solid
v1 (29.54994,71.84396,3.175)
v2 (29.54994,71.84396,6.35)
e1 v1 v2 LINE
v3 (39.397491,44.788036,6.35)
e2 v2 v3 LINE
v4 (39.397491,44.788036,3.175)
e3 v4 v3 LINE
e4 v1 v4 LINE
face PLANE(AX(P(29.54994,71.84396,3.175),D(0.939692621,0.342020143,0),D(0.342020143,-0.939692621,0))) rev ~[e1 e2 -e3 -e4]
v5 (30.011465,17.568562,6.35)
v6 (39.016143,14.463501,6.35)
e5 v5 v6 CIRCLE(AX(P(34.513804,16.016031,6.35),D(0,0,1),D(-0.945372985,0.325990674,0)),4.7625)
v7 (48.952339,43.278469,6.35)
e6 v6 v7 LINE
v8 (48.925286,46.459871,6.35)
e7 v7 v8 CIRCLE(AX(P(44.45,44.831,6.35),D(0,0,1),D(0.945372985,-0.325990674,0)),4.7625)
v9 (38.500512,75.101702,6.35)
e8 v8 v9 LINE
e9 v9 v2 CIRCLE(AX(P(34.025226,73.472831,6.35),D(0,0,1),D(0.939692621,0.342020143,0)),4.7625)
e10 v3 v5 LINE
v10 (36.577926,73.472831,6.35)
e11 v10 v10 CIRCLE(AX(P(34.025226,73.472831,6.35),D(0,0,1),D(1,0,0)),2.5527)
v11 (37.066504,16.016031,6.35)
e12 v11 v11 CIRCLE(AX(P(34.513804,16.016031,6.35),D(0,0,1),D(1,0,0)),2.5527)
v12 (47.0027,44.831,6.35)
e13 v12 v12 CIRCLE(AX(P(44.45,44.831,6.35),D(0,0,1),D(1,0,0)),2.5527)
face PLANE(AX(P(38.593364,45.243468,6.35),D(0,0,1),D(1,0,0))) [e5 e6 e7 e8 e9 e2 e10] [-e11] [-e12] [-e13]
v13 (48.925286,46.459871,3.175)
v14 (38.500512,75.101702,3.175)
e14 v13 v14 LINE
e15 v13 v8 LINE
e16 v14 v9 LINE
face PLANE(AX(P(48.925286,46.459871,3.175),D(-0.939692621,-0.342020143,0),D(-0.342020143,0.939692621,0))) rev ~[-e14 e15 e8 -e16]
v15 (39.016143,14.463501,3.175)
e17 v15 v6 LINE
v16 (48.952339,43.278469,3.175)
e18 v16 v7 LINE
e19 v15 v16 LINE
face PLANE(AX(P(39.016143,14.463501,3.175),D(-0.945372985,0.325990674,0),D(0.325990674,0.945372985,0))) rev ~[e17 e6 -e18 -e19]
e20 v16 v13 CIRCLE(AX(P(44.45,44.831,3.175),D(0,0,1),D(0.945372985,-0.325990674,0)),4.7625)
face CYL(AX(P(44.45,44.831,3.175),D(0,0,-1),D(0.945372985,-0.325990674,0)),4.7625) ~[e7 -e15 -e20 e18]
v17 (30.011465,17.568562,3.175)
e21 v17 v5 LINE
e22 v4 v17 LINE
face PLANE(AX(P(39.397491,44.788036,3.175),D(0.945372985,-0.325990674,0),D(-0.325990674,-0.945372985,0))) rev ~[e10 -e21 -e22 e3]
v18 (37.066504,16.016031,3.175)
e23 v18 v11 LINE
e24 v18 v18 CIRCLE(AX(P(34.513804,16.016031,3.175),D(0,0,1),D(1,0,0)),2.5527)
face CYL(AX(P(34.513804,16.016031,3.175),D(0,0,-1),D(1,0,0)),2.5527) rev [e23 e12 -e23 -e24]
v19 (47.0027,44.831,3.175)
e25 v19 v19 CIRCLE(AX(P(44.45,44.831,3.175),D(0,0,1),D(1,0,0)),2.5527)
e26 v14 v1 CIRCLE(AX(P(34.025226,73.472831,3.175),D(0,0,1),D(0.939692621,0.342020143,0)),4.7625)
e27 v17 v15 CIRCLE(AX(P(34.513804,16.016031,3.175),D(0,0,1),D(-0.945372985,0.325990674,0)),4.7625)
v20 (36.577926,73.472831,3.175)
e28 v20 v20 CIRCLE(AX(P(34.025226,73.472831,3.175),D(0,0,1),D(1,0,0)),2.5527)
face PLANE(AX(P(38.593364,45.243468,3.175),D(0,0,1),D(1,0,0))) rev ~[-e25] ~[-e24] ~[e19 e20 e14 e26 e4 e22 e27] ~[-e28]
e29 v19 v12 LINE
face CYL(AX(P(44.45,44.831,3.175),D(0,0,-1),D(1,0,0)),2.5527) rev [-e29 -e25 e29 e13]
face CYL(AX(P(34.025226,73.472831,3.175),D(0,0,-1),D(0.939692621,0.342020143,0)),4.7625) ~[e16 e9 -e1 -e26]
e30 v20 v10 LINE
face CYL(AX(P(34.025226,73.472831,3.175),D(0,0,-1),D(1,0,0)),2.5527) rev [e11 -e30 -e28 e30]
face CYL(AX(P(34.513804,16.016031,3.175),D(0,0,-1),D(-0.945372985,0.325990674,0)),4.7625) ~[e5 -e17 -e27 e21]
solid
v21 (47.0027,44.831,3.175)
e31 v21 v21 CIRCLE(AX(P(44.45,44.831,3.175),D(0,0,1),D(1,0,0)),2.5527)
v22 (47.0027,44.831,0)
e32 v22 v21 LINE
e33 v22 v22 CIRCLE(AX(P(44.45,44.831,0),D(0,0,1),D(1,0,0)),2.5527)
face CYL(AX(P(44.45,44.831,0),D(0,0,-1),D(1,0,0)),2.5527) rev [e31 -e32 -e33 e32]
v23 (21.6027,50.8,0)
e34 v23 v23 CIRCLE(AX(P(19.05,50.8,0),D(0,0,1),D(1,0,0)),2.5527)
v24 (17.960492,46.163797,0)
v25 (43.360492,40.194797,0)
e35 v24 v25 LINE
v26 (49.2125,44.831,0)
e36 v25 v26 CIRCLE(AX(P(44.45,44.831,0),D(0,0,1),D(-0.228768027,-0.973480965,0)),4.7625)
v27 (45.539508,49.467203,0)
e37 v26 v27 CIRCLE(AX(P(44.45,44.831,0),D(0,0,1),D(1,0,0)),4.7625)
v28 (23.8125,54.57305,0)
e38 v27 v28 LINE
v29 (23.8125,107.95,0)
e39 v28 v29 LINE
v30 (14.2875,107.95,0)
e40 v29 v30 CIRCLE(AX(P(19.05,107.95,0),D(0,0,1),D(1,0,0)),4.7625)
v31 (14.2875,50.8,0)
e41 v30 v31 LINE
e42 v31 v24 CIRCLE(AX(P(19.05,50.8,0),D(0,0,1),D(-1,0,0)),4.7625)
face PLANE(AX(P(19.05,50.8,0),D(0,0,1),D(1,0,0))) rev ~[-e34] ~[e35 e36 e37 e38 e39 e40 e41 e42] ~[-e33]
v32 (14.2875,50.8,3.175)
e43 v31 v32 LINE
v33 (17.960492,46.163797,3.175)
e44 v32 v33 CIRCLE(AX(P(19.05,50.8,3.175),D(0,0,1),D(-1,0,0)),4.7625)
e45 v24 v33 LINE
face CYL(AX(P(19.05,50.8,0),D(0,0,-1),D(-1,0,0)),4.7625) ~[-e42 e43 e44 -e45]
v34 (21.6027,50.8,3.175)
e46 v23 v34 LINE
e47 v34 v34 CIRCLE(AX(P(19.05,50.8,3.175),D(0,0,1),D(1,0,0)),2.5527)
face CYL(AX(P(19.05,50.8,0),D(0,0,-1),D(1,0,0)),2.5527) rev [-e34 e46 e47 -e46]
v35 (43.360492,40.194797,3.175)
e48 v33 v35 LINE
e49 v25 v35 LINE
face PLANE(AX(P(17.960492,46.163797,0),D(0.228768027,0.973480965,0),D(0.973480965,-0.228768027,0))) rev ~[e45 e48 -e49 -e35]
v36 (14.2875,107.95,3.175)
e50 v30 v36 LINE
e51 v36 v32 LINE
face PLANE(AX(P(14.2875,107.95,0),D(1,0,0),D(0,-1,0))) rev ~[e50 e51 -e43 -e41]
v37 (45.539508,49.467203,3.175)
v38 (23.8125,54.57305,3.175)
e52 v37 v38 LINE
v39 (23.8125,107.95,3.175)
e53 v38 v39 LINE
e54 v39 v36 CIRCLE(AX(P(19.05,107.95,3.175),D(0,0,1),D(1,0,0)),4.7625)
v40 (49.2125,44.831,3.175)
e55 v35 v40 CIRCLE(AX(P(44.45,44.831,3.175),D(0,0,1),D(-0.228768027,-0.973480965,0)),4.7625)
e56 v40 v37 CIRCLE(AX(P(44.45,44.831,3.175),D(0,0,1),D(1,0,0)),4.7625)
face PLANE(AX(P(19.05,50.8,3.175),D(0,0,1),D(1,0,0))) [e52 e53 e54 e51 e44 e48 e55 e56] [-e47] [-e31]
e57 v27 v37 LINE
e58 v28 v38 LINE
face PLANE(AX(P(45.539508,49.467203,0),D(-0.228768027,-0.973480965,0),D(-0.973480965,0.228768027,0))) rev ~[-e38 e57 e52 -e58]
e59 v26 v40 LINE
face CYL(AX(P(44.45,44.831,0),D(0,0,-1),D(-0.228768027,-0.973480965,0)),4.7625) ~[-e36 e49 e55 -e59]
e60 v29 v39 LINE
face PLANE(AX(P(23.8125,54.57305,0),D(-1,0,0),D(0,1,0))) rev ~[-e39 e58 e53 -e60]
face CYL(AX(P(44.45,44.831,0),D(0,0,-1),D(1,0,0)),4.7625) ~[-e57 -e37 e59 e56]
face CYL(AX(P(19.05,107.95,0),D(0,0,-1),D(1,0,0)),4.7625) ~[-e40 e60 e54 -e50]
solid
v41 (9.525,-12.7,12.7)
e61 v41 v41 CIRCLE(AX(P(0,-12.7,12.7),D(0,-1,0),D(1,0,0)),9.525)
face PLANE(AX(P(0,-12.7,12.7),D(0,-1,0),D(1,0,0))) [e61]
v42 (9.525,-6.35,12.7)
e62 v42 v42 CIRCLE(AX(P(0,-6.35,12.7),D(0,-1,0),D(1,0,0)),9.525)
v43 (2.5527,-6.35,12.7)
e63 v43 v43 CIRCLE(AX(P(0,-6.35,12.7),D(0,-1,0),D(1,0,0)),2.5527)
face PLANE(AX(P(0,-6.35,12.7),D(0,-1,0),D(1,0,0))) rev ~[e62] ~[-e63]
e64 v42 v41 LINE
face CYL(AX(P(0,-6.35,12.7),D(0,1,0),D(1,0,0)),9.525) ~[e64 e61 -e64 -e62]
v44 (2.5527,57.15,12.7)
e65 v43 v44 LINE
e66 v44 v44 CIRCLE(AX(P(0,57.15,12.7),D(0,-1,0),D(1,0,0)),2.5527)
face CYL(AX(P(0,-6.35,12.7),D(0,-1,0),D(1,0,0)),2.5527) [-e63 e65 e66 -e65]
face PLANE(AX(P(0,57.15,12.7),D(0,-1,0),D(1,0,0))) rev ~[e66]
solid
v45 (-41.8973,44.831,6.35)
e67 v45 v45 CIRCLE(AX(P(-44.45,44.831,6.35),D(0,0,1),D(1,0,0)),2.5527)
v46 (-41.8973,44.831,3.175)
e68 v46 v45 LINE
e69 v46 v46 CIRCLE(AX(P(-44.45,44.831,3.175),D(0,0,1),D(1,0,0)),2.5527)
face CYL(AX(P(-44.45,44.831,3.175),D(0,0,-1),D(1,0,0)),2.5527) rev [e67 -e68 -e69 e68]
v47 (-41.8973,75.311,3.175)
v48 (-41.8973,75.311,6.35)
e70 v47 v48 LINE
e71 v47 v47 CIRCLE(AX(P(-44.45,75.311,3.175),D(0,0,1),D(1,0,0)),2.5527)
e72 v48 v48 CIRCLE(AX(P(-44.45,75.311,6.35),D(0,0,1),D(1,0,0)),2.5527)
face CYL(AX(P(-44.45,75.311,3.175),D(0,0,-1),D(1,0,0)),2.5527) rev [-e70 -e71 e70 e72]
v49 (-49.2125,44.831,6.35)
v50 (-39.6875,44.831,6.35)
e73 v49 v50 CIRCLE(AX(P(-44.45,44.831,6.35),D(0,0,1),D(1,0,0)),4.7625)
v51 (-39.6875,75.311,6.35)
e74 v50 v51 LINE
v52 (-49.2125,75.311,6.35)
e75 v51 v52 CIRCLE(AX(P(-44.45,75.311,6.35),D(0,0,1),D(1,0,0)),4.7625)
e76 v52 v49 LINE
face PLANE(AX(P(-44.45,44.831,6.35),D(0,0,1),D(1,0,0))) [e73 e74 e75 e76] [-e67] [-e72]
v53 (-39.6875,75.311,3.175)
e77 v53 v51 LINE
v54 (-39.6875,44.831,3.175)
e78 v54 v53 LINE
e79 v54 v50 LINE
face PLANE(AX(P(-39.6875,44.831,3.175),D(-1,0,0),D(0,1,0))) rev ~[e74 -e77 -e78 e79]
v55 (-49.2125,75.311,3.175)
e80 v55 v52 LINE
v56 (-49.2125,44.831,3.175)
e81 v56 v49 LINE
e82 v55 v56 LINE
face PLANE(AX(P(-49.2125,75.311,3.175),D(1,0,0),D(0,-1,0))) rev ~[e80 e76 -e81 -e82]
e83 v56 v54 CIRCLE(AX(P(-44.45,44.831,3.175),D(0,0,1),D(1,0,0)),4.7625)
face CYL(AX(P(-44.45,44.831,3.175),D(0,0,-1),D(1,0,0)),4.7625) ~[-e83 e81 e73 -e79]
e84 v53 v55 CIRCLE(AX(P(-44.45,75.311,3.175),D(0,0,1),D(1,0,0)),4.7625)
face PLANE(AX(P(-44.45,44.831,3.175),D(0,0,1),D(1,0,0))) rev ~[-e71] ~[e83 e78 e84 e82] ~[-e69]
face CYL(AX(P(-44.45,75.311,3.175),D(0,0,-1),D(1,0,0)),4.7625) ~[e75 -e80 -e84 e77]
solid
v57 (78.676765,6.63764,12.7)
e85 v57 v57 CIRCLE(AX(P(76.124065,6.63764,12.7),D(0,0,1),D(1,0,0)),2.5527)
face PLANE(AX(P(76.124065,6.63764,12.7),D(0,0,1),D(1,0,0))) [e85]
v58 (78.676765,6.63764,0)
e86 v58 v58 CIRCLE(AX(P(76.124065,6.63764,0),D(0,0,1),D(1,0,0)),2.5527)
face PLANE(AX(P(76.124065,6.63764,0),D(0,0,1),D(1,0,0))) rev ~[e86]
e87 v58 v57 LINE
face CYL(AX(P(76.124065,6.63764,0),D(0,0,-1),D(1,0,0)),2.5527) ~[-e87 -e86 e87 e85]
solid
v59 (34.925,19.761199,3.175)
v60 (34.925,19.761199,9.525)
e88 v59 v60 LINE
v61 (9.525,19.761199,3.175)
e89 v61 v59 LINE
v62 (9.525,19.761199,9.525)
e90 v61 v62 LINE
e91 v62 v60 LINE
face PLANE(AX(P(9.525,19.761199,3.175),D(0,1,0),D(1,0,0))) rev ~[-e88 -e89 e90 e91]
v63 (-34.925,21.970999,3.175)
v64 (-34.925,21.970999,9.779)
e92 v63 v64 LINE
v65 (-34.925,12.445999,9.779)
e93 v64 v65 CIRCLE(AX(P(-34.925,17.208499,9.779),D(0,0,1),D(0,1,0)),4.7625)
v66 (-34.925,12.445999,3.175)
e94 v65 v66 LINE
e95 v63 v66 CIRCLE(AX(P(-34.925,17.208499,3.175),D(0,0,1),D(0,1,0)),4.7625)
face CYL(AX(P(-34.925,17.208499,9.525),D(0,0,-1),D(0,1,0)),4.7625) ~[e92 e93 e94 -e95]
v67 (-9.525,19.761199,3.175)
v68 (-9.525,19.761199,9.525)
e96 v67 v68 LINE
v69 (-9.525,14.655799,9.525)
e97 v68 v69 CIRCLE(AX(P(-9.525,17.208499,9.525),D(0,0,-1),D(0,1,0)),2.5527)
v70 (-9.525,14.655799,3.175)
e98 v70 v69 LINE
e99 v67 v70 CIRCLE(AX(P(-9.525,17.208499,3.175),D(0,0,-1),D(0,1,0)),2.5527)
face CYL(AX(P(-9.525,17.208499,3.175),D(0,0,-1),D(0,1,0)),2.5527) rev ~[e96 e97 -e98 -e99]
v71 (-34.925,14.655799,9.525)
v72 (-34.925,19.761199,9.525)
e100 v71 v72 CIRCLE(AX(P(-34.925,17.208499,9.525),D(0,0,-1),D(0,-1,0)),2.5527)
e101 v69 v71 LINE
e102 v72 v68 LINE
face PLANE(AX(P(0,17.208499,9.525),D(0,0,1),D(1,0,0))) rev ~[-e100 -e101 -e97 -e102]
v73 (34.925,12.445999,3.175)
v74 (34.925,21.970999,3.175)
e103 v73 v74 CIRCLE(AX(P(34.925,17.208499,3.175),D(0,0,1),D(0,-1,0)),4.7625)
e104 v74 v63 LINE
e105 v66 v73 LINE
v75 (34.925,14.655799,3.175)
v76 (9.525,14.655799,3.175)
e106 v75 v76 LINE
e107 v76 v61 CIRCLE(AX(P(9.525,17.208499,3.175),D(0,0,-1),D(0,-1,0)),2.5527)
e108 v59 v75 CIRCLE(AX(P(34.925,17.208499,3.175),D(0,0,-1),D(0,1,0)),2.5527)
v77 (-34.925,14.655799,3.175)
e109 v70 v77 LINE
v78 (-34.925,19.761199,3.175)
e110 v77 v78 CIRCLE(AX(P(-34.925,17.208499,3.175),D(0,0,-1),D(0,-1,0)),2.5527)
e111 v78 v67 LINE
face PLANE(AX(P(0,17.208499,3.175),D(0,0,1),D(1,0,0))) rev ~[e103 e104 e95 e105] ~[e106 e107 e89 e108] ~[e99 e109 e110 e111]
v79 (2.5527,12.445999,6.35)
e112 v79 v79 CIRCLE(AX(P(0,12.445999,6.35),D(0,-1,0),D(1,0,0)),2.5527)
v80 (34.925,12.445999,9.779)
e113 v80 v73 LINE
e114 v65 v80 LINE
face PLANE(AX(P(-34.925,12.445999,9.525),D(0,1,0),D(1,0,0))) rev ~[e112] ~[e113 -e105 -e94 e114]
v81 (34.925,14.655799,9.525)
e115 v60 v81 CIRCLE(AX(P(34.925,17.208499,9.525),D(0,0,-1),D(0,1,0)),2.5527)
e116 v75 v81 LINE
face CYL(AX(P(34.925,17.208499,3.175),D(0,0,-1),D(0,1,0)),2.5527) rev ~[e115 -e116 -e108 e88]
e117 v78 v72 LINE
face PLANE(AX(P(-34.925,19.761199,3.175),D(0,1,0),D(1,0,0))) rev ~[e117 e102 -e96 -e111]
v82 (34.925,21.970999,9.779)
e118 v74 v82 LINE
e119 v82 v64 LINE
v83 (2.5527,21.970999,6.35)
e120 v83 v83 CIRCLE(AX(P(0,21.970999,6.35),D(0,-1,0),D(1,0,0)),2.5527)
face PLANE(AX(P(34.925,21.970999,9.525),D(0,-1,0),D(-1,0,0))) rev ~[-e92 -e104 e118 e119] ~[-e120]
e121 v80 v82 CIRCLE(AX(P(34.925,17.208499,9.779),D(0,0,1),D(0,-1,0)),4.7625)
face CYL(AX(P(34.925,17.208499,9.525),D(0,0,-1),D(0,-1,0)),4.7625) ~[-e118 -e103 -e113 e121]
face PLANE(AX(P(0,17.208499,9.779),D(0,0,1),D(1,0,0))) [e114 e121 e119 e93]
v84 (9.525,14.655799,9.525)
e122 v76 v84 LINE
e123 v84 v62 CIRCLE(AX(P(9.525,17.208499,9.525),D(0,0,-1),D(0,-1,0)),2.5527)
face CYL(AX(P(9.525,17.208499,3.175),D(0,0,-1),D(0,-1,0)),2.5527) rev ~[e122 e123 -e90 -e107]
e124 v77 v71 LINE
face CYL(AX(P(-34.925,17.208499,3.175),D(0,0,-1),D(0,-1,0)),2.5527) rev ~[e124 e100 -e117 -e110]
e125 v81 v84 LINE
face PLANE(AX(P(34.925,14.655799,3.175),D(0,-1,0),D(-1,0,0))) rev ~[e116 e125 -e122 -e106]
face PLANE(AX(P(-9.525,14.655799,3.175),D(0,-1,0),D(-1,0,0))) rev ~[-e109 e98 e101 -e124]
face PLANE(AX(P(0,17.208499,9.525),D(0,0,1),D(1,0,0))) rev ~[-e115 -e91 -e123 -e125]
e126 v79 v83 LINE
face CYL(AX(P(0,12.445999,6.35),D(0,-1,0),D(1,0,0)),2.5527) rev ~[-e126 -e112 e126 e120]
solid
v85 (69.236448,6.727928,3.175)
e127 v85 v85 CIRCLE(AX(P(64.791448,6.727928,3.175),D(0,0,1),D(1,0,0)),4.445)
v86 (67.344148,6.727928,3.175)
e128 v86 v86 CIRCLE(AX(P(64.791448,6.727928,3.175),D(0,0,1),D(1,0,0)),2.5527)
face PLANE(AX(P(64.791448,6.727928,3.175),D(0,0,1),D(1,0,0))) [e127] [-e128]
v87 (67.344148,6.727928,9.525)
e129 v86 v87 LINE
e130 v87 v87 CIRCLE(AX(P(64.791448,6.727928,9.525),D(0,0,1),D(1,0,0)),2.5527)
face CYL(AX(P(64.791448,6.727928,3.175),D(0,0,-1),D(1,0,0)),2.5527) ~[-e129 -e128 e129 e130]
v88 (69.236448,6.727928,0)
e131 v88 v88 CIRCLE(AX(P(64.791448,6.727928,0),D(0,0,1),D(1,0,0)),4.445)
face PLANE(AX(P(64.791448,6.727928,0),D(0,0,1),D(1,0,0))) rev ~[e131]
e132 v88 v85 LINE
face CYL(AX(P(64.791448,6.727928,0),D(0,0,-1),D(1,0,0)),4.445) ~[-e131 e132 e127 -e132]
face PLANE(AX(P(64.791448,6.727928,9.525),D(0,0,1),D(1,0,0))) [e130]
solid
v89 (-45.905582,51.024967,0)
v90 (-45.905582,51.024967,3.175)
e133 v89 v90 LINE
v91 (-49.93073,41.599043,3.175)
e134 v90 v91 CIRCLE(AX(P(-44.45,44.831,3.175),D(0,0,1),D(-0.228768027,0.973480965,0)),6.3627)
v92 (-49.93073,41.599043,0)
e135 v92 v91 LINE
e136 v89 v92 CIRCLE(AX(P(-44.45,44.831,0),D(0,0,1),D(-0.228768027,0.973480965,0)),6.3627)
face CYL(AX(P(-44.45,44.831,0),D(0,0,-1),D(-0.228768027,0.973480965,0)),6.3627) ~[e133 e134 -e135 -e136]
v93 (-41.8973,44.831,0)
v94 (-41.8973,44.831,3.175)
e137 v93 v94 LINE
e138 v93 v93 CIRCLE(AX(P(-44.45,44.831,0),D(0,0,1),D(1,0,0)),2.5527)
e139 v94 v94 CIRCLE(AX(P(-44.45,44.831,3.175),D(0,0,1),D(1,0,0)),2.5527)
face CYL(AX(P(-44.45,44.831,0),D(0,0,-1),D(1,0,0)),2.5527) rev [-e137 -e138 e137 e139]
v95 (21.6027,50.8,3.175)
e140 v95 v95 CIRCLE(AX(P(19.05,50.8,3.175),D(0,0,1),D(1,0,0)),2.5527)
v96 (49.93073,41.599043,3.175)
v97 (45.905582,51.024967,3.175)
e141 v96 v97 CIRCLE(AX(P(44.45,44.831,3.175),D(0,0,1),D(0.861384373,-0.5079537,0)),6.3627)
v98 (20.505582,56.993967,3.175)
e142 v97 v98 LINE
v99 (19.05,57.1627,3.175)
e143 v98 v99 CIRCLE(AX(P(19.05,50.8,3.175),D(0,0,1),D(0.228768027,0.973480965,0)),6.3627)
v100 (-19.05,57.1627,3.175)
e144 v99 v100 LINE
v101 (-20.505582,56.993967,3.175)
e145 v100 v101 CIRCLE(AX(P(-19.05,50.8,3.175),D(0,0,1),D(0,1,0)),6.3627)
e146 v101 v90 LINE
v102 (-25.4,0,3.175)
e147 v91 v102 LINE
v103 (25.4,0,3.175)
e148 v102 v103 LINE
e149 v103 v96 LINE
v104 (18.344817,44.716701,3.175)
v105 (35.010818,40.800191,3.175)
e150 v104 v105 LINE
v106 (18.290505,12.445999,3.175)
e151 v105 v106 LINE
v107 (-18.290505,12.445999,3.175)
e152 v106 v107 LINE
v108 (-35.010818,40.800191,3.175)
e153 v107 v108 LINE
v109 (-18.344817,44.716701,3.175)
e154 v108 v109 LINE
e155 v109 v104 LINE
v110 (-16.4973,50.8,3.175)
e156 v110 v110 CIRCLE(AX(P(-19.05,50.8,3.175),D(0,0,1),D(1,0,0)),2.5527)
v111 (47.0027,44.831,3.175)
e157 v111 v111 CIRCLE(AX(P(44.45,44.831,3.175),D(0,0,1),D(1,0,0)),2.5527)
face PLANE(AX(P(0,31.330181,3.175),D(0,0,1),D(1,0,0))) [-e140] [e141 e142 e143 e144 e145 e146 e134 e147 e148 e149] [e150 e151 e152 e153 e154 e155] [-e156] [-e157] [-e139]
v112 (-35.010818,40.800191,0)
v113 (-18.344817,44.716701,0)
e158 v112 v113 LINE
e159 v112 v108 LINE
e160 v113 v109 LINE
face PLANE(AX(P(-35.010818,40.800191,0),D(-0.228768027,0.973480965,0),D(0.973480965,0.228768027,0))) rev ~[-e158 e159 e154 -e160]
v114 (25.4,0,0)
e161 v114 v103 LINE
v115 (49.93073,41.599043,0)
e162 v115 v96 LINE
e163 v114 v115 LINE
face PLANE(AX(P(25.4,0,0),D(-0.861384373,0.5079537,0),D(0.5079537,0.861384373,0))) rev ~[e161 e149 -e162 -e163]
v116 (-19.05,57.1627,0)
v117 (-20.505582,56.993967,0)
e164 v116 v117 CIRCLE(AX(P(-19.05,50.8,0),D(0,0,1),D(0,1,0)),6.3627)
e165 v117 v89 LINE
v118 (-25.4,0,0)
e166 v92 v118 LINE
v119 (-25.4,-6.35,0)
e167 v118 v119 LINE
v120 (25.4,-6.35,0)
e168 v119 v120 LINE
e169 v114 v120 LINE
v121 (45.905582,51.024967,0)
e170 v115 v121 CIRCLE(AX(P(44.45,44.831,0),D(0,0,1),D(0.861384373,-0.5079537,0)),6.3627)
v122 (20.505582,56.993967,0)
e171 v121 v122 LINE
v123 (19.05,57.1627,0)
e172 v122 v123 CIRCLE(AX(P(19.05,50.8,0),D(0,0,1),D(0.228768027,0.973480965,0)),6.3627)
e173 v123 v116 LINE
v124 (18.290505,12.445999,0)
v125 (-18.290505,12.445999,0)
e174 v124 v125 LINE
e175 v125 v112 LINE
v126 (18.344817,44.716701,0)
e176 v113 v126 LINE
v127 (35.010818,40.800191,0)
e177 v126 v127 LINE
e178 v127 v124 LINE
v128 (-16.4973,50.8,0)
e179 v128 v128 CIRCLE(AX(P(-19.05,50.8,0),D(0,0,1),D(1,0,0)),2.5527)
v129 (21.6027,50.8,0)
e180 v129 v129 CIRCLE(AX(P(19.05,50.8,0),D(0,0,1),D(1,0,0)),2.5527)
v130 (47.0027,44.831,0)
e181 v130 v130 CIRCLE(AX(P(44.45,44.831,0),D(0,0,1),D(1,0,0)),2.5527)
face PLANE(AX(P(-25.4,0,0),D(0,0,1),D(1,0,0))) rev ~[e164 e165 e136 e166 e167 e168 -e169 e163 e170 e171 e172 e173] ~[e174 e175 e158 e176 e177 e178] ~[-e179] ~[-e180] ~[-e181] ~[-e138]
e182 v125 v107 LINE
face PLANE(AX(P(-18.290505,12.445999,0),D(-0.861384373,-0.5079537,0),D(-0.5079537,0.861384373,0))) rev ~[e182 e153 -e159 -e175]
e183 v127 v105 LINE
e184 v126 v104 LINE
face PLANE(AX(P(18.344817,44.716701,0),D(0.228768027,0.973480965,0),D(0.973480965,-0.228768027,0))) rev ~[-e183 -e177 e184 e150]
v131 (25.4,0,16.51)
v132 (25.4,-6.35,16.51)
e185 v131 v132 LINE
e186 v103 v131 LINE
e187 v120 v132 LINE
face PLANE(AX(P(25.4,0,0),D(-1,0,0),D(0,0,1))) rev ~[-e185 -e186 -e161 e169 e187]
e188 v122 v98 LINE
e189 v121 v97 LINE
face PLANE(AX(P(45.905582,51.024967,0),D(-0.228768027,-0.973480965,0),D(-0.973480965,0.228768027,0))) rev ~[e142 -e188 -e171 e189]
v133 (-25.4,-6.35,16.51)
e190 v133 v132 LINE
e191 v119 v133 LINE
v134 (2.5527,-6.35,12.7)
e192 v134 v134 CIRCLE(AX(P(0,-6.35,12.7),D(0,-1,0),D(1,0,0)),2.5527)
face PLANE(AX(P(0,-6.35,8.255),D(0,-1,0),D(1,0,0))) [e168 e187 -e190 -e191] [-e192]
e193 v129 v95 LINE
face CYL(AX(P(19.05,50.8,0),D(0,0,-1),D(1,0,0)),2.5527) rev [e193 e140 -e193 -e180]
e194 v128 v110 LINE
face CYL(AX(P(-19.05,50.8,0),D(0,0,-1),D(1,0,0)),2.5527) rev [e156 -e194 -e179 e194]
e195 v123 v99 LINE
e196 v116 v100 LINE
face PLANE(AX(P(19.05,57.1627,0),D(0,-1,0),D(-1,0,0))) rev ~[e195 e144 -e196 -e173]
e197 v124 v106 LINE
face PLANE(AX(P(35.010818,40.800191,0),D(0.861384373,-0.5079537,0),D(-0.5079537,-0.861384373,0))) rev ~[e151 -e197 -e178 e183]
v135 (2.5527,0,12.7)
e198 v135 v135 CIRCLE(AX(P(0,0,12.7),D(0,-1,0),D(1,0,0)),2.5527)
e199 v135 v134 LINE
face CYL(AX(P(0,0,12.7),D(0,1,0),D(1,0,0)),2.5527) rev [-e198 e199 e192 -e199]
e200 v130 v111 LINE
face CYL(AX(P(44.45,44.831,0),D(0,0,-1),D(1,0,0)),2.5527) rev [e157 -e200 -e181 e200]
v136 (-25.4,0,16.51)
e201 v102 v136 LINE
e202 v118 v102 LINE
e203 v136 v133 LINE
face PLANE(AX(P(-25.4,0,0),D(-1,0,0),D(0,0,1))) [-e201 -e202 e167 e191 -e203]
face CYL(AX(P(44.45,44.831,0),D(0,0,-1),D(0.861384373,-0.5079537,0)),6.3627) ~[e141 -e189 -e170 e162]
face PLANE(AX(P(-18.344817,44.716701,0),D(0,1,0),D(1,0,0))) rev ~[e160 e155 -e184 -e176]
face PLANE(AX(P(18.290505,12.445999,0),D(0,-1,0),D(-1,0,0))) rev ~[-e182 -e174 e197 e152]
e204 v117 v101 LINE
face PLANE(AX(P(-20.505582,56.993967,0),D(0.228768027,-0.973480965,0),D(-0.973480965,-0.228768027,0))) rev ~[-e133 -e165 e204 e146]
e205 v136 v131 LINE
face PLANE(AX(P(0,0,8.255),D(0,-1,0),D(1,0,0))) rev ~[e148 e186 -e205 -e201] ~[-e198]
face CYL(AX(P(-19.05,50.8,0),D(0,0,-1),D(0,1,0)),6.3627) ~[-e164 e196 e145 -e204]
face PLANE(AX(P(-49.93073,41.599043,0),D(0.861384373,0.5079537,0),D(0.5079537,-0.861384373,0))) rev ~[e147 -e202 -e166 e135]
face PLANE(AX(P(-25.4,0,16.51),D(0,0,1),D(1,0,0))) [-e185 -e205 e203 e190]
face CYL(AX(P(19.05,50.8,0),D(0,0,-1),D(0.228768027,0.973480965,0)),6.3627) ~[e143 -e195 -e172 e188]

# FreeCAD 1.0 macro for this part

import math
import FreeCAD as App
import Part
import Sketcher
Q = App.Units.Quantity

doc = App.newDocument("Part")
body = doc.addObject("PartDesign::Body", "Body")

# Sketch on XY plane
sketch1 = body.newObject("Sketcher::SketchObject", "Sketch")
sketch1.AttachmentSupport = (doc.getObject("XY_Plane"), [""])
sketch1.MapMode = "FlatFace"
sketch1.addGeometry(Part.LineSegment(App.Vector(45.905582, 51.024967, 0), App.Vector(20.505582, 56.993967, 0)), False)
sketch1.addGeometry(Part.ArcOfCircle(Part.Circle(App.Vector(19.05, 50.8, 0), App.Vector(0, 0, 1), 6.3627), math.radians(76.775449), math.radians(90)), False)
sketch1.addGeometry(Part.LineSegment(App.Vector(19.05, 57.1627, 0), App.Vector(-19.05, 57.1627, 0)), False)
sketch1.addGeometry(Part.ArcOfCircle(Part.Circle(App.Vector(-19.05, 50.8, 0), App.Vector(0, 0, 1), 6.3627), math.radians(90), math.radians(103.224551)), False)
sketch1.addGeometry(Part.LineSegment(App.Vector(-20.505582, 56.993967, 0), App.Vector(-45.905582, 51.024967, 0)), False)
sketch1.addGeometry(Part.ArcOfCircle(Part.Circle(App.Vector(-44.45, 44.831, 0), App.Vector(0, 0, 1), 6.3627), math.radians(103.224551), math.radians(210.527623)), False)
sketch1.addGeometry(Part.LineSegment(App.Vector(-49.93073, 41.599043, 0), App.Vector(-25.4, 0, 0)), False)
sketch1.addGeometry(Part.LineSegment(App.Vector(-25.4, 0, 0), App.Vector(25.4, 0, 0)), False)
sketch1.addGeometry(Part.LineSegment(App.Vector(25.4, 0, 0), App.Vector(49.93073, 41.599043, 0)), False)
sketch1.addGeometry(Part.ArcOfCircle(Part.Circle(App.Vector(44.45, 44.831, 0), App.Vector(0, 0, 1), 6.3627), math.radians(-30.527623), math.radians(76.775449)), False)
sketch1.addGeometry(Part.LineSegment(App.Vector(18.290505, 12.445999, 0), App.Vector(-18.290505, 12.445999, 0)), False)
sketch1.addGeometry(Part.LineSegment(App.Vector(-18.290505, 12.445999, 0), App.Vector(-35.010818, 40.800191, 0)), False)
sketch1.addGeometry(Part.LineSegment(App.Vector(-35.010818, 40.800191, 0), App.Vector(-18.344817, 44.716701, 0)), False)
sketch1.addGeometry(Part.LineSegment(App.Vector(-18.344817, 44.716701, 0), App.Vector(18.344817, 44.716701, 0)), False)
sketch1.addGeometry(Part.LineSegment(App.Vector(18.344817, 44.716701, 0), App.Vector(35.010818, 40.800191, 0)), False)
sketch1.addGeometry(Part.LineSegment(App.Vector(35.010818, 40.800191, 0), App.Vector(18.290505, 12.445999, 0)), False)
sketch1.addGeometry(Part.Circle(App.Vector(-44.45, 44.831, 0), App.Vector(0, 0, 1), 2.5527), False)
sketch1.addGeometry(Part.Circle(App.Vector(-19.05, 50.8, 0), App.Vector(0, 0, 1), 2.5527), False)
sketch1.addGeometry(Part.Circle(App.Vector(19.05, 50.8, 0), App.Vector(0, 0, 1), 2.5527), False)
sketch1.addGeometry(Part.Circle(App.Vector(44.45, 44.831, 0), App.Vector(0, 0, 1), 2.5527), False)
sketch1.addConstraint(Sketcher.Constraint("Tangent", 0, 2, 1, 1))
sketch1.addConstraint(Sketcher.Constraint("Tangent", 1, 2, 2, 1))
sketch1.addConstraint(Sketcher.Constraint("Tangent", 2, 2, 3, 1))
sketch1.addConstraint(Sketcher.Constraint("Tangent", 3, 2, 4, 1))
sketch1.addConstraint(Sketcher.Constraint("Tangent", 4, 2, 5, 1))
sketch1.addConstraint(Sketcher.Constraint("Tangent", 5, 2, 6, 1))
sketch1.addConstraint(Sketcher.Constraint("Coincident", 6, 2, 7, 1))
sketch1.addConstraint(Sketcher.Constraint("Coincident", 7, 2, 8, 1))
sketch1.addConstraint(Sketcher.Constraint("Tangent", 8, 2, 9, 1))
sketch1.addConstraint(Sketcher.Constraint("Tangent", 9, 2, 0, 1))
sketch1.addConstraint(Sketcher.Constraint("Coincident", 10, 2, 11, 1))
sketch1.addConstraint(Sketcher.Constraint("Coincident", 11, 2, 12, 1))
sketch1.addConstraint(Sketcher.Constraint("Coincident", 12, 2, 13, 1))
sketch1.addConstraint(Sketcher.Constraint("Coincident", 13, 2, 14, 1))
sketch1.addConstraint(Sketcher.Constraint("Coincident", 14, 2, 15, 1))
sketch1.addConstraint(Sketcher.Constraint("Coincident", 15, 2, 10, 1))
sketch1.addConstraint(Sketcher.Constraint("Horizontal", 2))
sketch1.addConstraint(Sketcher.Constraint("Horizontal", 7))
sketch1.addConstraint(Sketcher.Constraint("Horizontal", 10))
sketch1.addConstraint(Sketcher.Constraint("Horizontal", 13))
sketch1.addConstraint(Sketcher.Constraint("Coincident", 16, 3, 5, 3))
sketch1.addConstraint(Sketcher.Constraint("Coincident", 17, 3, 3, 3))
sketch1.addConstraint(Sketcher.Constraint("Coincident", 18, 3, 1, 3))
sketch1.addConstraint(Sketcher.Constraint("Coincident", 19, 3, 9, 3))
sketch1.addConstraint(Sketcher.Constraint("Equal", 1, 3))
sketch1.addConstraint(Sketcher.Constraint("Equal", 3, 5))
sketch1.addConstraint(Sketcher.Constraint("Equal", 5, 9))
sketch1.addConstraint(Sketcher.Constraint("Equal", 16, 17))
sketch1.addConstraint(Sketcher.Constraint("Equal", 17, 18))
sketch1.addConstraint(Sketcher.Constraint("Equal", 18, 19))
sketch1.addConstraint(Sketcher.Constraint("Symmetric", 6, 2, 7, 2, -1, 1))
sketch1.addConstraint(Sketcher.Constraint("Symmetric", 5, 3, 9, 3, -2))
sketch1.addConstraint(Sketcher.Constraint("Symmetric", 11, 2, 14, 2, -2))
sketch1.addConstraint(Sketcher.Constraint("Parallel", 6, 11))
sketch1.addConstraint(Sketcher.Constraint("Parallel", 4, 12))
sketch1.addConstraint(Sketcher.Constraint("Parallel", 0, 14))
sketch1.addConstraint(Sketcher.Constraint("Parallel", 8, 15))
sketch1.addConstraint(Sketcher.Constraint("Horizontal", 0, 2, 3, 2))
sketch1.addConstraint(Sketcher.Constraint("DistanceX", 7, 1, 7, 2, Q("2 in")))
sketch1.addConstraint(Sketcher.Constraint("Diameter", 16, Q("0.201 in")))
sketch1.addConstraint(Sketcher.Constraint("DistanceX", 2, 2, 2, 1, Q("1.5 in")))
sketch1.addConstraint(Sketcher.Constraint("DistanceY", -1, 1, 1, 3, Q("2 in")))
sketch1.addConstraint(Sketcher.Constraint("DistanceX", 5, 3, 3, 3, Q("1 in")))
sketch1.addConstraint(Sketcher.Constraint("Radius", 1, Q("0.2505 in")))
sketch1.addConstraint(Sketcher.Constraint("DistanceY", -1, 1, 10, 2, Q("0.49 in")))
sketch1.addConstraint(Sketcher.Constraint("DistanceY", 12, 2, 2, 2, Q("0.49 in")))
sketch1.addConstraint(Sketcher.Constraint("DistanceY", -1, 1, 5, 3, Q("1.765 in")))
sketch1.addConstraint(Sketcher.Constraint("DistanceX", 10, 2, 10, 1, Q("36.58101 mm")))
sketch1.addConstraint(Sketcher.Constraint("DistanceX", 11, 2, 12, 2, Q("16.666001 mm")))
pad1 = body.newObject("PartDesign::Pad", "Pad")
pad1.Profile = sketch1
pad1.Length = Q("0.125 in")

# Sketch on XZ plane
sketch2 = body.newObject("Sketcher::SketchObject", "Sketch001")
sketch2.AttachmentSupport = (doc.getObject("XZ_Plane"), [""])
sketch2.MapMode = "FlatFace"
sketch2.addGeometry(Part.LineSegment(App.Vector(-25.4, 16.51, 0), App.Vector(-25.4, 0, 0)), False)
sketch2.addGeometry(Part.LineSegment(App.Vector(-25.4, 0, 0), App.Vector(25.4, 0, 0)), False)
sketch2.addGeometry(Part.LineSegment(App.Vector(25.4, 0, 0), App.Vector(25.4, 16.51, 0)), False)
sketch2.addGeometry(Part.LineSegment(App.Vector(25.4, 16.51, 0), App.Vector(-25.4, 16.51, 0)), False)
sketch2.addGeometry(Part.Circle(App.Vector(0, 12.7, 0), App.Vector(0, 0, 1), 2.5527), False)
sketch2.addConstraint(Sketcher.Constraint("Coincident", 0, 2, 1, 1))
sketch2.addConstraint(Sketcher.Constraint("Coincident", 1, 2, 2, 1))
sketch2.addConstraint(Sketcher.Constraint("Coincident", 2, 2, 3, 1))
sketch2.addConstraint(Sketcher.Constraint("Coincident", 3, 2, 0, 1))
sketch2.addConstraint(Sketcher.Constraint("Vertical", 0))
sketch2.addConstraint(Sketcher.Constraint("Horizontal", 1))
sketch2.addConstraint(Sketcher.Constraint("Vertical", 2))
sketch2.addConstraint(Sketcher.Constraint("Horizontal", 3))
sketch2.addConstraint(Sketcher.Constraint("Symmetric", 0, 2, 1, 2, -1, 1))
sketch2.addConstraint(Sketcher.Constraint("PointOnObject", 4, 3, -2))
sketch2.addConstraint(Sketcher.Constraint("DistanceX", 1, 1, 1, 2, Q("2 in")))
sketch2.addConstraint(Sketcher.Constraint("Diameter", 4, Q("0.201 in")))
sketch2.addConstraint(Sketcher.Constraint("DistanceY", 0, 2, 0, 1, Q("0.65 in")))
sketch2.addConstraint(Sketcher.Constraint("DistanceY", -1, 1, 4, 3, Q("0.5 in")))
pad2 = body.newObject("PartDesign::Pad", "Pad001")
pad2.Profile = sketch2
pad2.Length = Q("0.25 in")
body2 = doc.addObject("PartDesign::Body", "Body001")

# Sketch on XY plane
sketch3 = body2.newObject("Sketcher::SketchObject", "Sketch002")
sketch3.AttachmentSupport = (doc.getObject("XY_Plane001"), [""])
sketch3.MapMode = "FlatFace"
sketch3.AttachmentOffset = App.Placement(App.Vector(0, 0, 0.125 * 25.4), App.Rotation())
sketch3.addGeometry(Part.ArcOfCircle(Part.Circle(App.Vector(-44.45, 44.831, 0), App.Vector(0, 0, 1), 4.7625), math.radians(180), math.radians(360)), False)
sketch3.addGeometry(Part.LineSegment(App.Vector(-39.6875, 44.831, 0), App.Vector(-39.6875, 75.311, 0)), False)
sketch3.addGeometry(Part.ArcOfCircle(Part.Circle(App.Vector(-44.45, 75.311, 0), App.Vector(0, 0, 1), 4.7625), math.radians(0), math.radians(180)), False)
sketch3.addGeometry(Part.LineSegment(App.Vector(-49.2125, 75.311, 0), App.Vector(-49.2125, 44.831, 0)), False)
sketch3.addGeometry(Part.Circle(App.Vector(-44.45, 44.831, 0), App.Vector(0, 0, 1), 2.5527), False)
sketch3.addGeometry(Part.Circle(App.Vector(-44.45, 75.311, 0), App.Vector(0, 0, 1), 2.5527), False)
sketch3.addConstraint(Sketcher.Constraint("Tangent", 0, 2, 1, 1))
sketch3.addConstraint(Sketcher.Constraint("Tangent", 1, 2, 2, 1))
sketch3.addConstraint(Sketcher.Constraint("Tangent", 2, 2, 3, 1))
sketch3.addConstraint(Sketcher.Constraint("Tangent", 3, 2, 0, 1))
sketch3.addConstraint(Sketcher.Constraint("Vertical", 1))
sketch3.addConstraint(Sketcher.Constraint("Vertical", 3))
sketch3.addConstraint(Sketcher.Constraint("Coincident", 4, 3, 0, 3))
sketch3.addConstraint(Sketcher.Constraint("Coincident", 5, 3, 2, 3))
sketch3.addConstraint(Sketcher.Constraint("Equal", 4, 5))
sketch3.addConstraint(Sketcher.Constraint("Diameter", 4, Q("0.201 in")))
sketch3.addConstraint(Sketcher.Constraint("DistanceY", 1, 1, 1, 2, Q("1.2 in")))
sketch3.addConstraint(Sketcher.Constraint("Radius", 0, Q("0.1875 in")))
sketch3.addConstraint(Sketcher.Constraint("DistanceX", 0, 3, -1, 1, Q("1.75 in")))
sketch3.addConstraint(Sketcher.Constraint("DistanceY", -1, 1, 0, 3, Q("1.765 in")))
pad3 = body2.newObject("PartDesign::Pad", "Pad002")
pad3.Profile = sketch3
pad3.Length = Q("0.125 in")
body3 = doc.addObject("PartDesign::Body", "Body002")

# Sketch on XY plane
sketch4 = body3.newObject("Sketcher::SketchObject", "Sketch003")
sketch4.AttachmentSupport = (doc.getObject("XY_Plane002"), [""])
sketch4.MapMode = "FlatFace"
sketch4.AttachmentOffset = App.Placement(App.Vector(0, 0, 0.125 * 25.4), App.Rotation())
sketch4.addGeometry(Part.LineSegment(App.Vector(34.925, 21.970999, 0), App.Vector(-34.925, 21.970999, 0)), False)
sketch4.addGeometry(Part.ArcOfCircle(Part.Circle(App.Vector(-34.925, 17.208499, 0), App.Vector(0, 0, 1), 4.7625), math.radians(90), math.radians(270)), False)
sketch4.addGeometry(Part.LineSegment(App.Vector(-34.925, 12.445999, 0), App.Vector(34.925, 12.445999, 0)), False)
sketch4.addGeometry(Part.ArcOfCircle(Part.Circle(App.Vector(34.925, 17.208499, 0), App.Vector(0, 0, 1), 4.7625), math.radians(-90), math.radians(90)), False)
sketch4.addGeometry(Part.LineSegment(App.Vector(-34.925, 19.761199, 0), App.Vector(-9.525, 19.761199, 0)), False)
sketch4.addGeometry(Part.ArcOfCircle(Part.Circle(App.Vector(-9.525, 17.208499, 0), App.Vector(0, 0, 1), 2.5527), math.radians(-90), math.radians(90)), False)
sketch4.addGeometry(Part.LineSegment(App.Vector(-9.525, 14.655799, 0), App.Vector(-34.925, 14.655799, 0)), False)
sketch4.addGeometry(Part.ArcOfCircle(Part.Circle(App.Vector(-34.925, 17.208499, 0), App.Vector(0, 0, 1), 2.5527), math.radians(90), math.radians(270)), False)
sketch4.addGeometry(Part.LineSegment(App.Vector(34.925, 14.655799, 0), App.Vector(9.525, 14.655799, 0)), False)
sketch4.addGeometry(Part.ArcOfCircle(Part.Circle(App.Vector(9.525, 17.208499, 0), App.Vector(0, 0, 1), 2.5527), math.radians(90), math.radians(270)), False)
sketch4.addGeometry(Part.LineSegment(App.Vector(9.525, 19.761199, 0), App.Vector(34.925, 19.761199, 0)), False)
sketch4.addGeometry(Part.ArcOfCircle(Part.Circle(App.Vector(34.925, 17.208499, 0), App.Vector(0, 0, 1), 2.5527), math.radians(-90), math.radians(90)), False)
sketch4.addConstraint(Sketcher.Constraint("Tangent", 0, 2, 1, 1))
sketch4.addConstraint(Sketcher.Constraint("Tangent", 1, 2, 2, 1))
sketch4.addConstraint(Sketcher.Constraint("Tangent", 2, 2, 3, 1))
sketch4.addConstraint(Sketcher.Constraint("Tangent", 3, 2, 0, 1))
sketch4.addConstraint(Sketcher.Constraint("Tangent", 4, 2, 5, 2))
sketch4.addConstraint(Sketcher.Constraint("Tangent", 5, 1, 6, 1))
sketch4.addConstraint(Sketcher.Constraint("Tangent", 6, 2, 7, 2))
sketch4.addConstraint(Sketcher.Constraint("Tangent", 7, 1, 4, 1))
sketch4.addConstraint(Sketcher.Constraint("Tangent", 8, 2, 9, 2))
sketch4.addConstraint(Sketcher.Constraint("Tangent", 9, 1, 10, 1))
sketch4.addConstraint(Sketcher.Constraint("Tangent", 10, 2, 11, 2))
sketch4.addConstraint(Sketcher.Constraint("Tangent", 11, 1, 8, 1))
sketch4.addConstraint(Sketcher.Constraint("Horizontal", 0))
sketch4.addConstraint(Sketcher.Constraint("Horizontal", 2))
sketch4.addConstraint(Sketcher.Constraint("Horizontal", 4))
sketch4.addConstraint(Sketcher.Constraint("Horizontal", 6))
sketch4.addConstraint(Sketcher.Constraint("Horizontal", 8))
sketch4.addConstraint(Sketcher.Constraint("Horizontal", 10))
sketch4.addConstraint(Sketcher.Constraint("Coincident", 7, 3, 1, 3))
sketch4.addConstraint(Sketcher.Constraint("Coincident", 11, 3, 3, 3))
sketch4.addConstraint(Sketcher.Constraint("Equal", 7, 9))
sketch4.addConstraint(Sketcher.Constraint("Equal", 6, 8))
sketch4.addConstraint(Sketcher.Constraint("DistanceX", 4, 1, 4, 2, Q("1 in")))
sketch4.addConstraint(Sketcher.Constraint("Radius", 1, Q("0.1875 in")))
sketch4.addConstraint(Sketcher.Constraint("DistanceX", 0, 2, 0, 1, Q("2.75 in")))
sketch4.addConstraint(Sketcher.Constraint("Radius", 5, Q("0.1005 in")))
sketch4.addConstraint(Sketcher.Constraint("DistanceY", -1, 1, 1, 2, Q("0.49 in")))
sketch4.addConstraint(Sketcher.Constraint("DistanceX", 1, 3, -1, 1, Q("1.375 in")))
pad4 = body3.newObject("PartDesign::Pad", "Pad003")
pad4.Profile = sketch4
pad4.Length = Q("0.25 in")

# Sketch on XY plane
sketch5 = body3.newObject("Sketcher::SketchObject", "Sketch004")
sketch5.AttachmentSupport = (doc.getObject("XY_Plane002"), [""])
sketch5.MapMode = "FlatFace"
sketch5.AttachmentOffset = App.Placement(App.Vector(0, 0, 0.375 * 25.4), App.Rotation())
sketch5.addGeometry(Part.ArcOfCircle(Part.Circle(App.Vector(34.925, 17.208499, 0), App.Vector(0, 0, 1), 4.7625), math.radians(-90), math.radians(90)), False)
sketch5.addGeometry(Part.LineSegment(App.Vector(34.925, 21.970999, 0), App.Vector(-34.925, 21.970999, 0)), False)
sketch5.addGeometry(Part.ArcOfCircle(Part.Circle(App.Vector(-34.925, 17.208499, 0), App.Vector(0, 0, 1), 4.7625), math.radians(90), math.radians(270)), False)
sketch5.addGeometry(Part.LineSegment(App.Vector(-34.925, 12.445999, 0), App.Vector(34.925, 12.445999, 0)), False)
sketch5.addConstraint(Sketcher.Constraint("Tangent", 0, 2, 1, 1))
sketch5.addConstraint(Sketcher.Constraint("Tangent", 1, 2, 2, 1))
sketch5.addConstraint(Sketcher.Constraint("Tangent", 2, 2, 3, 1))
sketch5.addConstraint(Sketcher.Constraint("Tangent", 3, 2, 0, 1))
sketch5.addConstraint(Sketcher.Constraint("Horizontal", 1))
sketch5.addConstraint(Sketcher.Constraint("Horizontal", 3))
sketch5.addConstraint(Sketcher.Constraint("Radius", 0, Q("0.1875 in")))
sketch5.addConstraint(Sketcher.Constraint("DistanceX", 1, 2, 1, 1, Q("2.75 in")))
sketch5.addConstraint(Sketcher.Constraint("DistanceY", -1, 1, 2, 2, Q("0.49 in")))
sketch5.addConstraint(Sketcher.Constraint("DistanceX", -1, 1, 0, 3, Q("1.375 in")))
pad5 = body3.newObject("PartDesign::Pad", "Pad004")
pad5.Profile = sketch5
pad5.Length = Q("0.01 in")

# Sketch on XZ plane
sketch6 = body3.newObject("Sketcher::SketchObject", "Sketch005")
sketch6.AttachmentSupport = (doc.getObject("XZ_Plane002"), [""])
sketch6.MapMode = "FlatFace"
sketch6.AttachmentOffset = App.Placement(App.Vector(0, 0, -0.49 * 25.4), App.Rotation())
sketch6.addGeometry(Part.Circle(App.Vector(0, 6.35, 0), App.Vector(0, 0, 1), 2.5527), False)
sketch6.addConstraint(Sketcher.Constraint("PointOnObject", 0, 3, -2))
sketch6.addConstraint(Sketcher.Constraint("Diameter", 0, Q("0.201 in")))
sketch6.addConstraint(Sketcher.Constraint("DistanceY", -1, 1, 0, 3, Q("0.25 in")))
pocket1 = body3.newObject("PartDesign::Pocket", "Pocket")
pocket1.Profile = sketch6
pocket1.Type = "ThroughAll"
body4 = doc.addObject("PartDesign::Body", "Body003")

# Sketch on XY plane
sketch7 = body4.newObject("Sketcher::SketchObject", "Sketch006")
sketch7.AttachmentSupport = (doc.getObject("XY_Plane003"), [""])
sketch7.MapMode = "FlatFace"
sketch7.AttachmentOffset = App.Placement(App.Vector(0, 0, 0.125 * 25.4), App.Rotation())
sketch7.addGeometry(Part.LineSegment(App.Vector(39.016143, 14.463501, 0), App.Vector(48.952339, 43.278469, 0)), False)
sketch7.addGeometry(Part.ArcOfCircle(Part.Circle(App.Vector(44.45, 44.831, 0), App.Vector(0, 0, 1), 4.7625), math.radians(-19.025605), math.radians(20)), False)
sketch7.addGeometry(Part.LineSegment(App.Vector(48.925286, 46.459871, 0), App.Vector(38.500512, 75.101702, 0)), False)
sketch7.addGeometry(Part.ArcOfCircle(Part.Circle(App.Vector(34.025226, 73.472831, 0), App.Vector(0, 0, 1), 4.7625), math.radians(20), math.radians(200)), False)
sketch7.addGeometry(Part.LineSegment(App.Vector(29.54994, 71.84396, 0), App.Vector(39.397491, 44.788036, 0)), False)
sketch7.addGeometry(Part.LineSegment(App.Vector(39.397491, 44.788036, 0), App.Vector(30.011465, 17.568562, 0)), False)
sketch7.addGeometry(Part.ArcOfCircle(Part.Circle(App.Vector(34.513804, 16.016031, 0), App.Vector(0, 0, 1), 4.7625), math.radians(160.974395), math.radians(340.974395)), False)
sketch7.addGeometry(Part.Circle(App.Vector(34.513804, 16.016031, 0), App.Vector(0, 0, 1), 2.5527), False)
sketch7.addGeometry(Part.Circle(App.Vector(34.025226, 73.472831, 0), App.Vector(0, 0, 1), 2.5527), False)
sketch7.addGeometry(Part.Circle(App.Vector(44.45, 44.831, 0), App.Vector(0, 0, 1), 2.5527), False)
sketch7.addConstraint(Sketcher.Constraint("Tangent", 0, 2, 1, 1))
sketch7.addConstraint(Sketcher.Constraint("Tangent", 1, 2, 2, 1))
sketch7.addConstraint(Sketcher.Constraint("Tangent", 2, 2, 3, 1))
sketch7.addConstraint(Sketcher.Constraint("Tangent", 3, 2, 4, 1))
sketch7.addConstraint(Sketcher.Constraint("Coincident", 4, 2, 5, 1))
sketch7.addConstraint(Sketcher.Constraint("Tangent", 5, 2, 6, 1))
sketch7.addConstraint(Sketcher.Constraint("Tangent", 6, 2, 0, 1))
sketch7.addConstraint(Sketcher.Constraint("Coincident", 7, 3, 6, 3))
sketch7.addConstraint(Sketcher.Constraint("Coincident", 8, 3, 3, 3))
sketch7.addConstraint(Sketcher.Constraint("Coincident", 9, 3, 1, 3))
sketch7.addConstraint(Sketcher.Constraint("Equal", 1, 3))
sketch7.addConstraint(Sketcher.Constraint("Equal", 3, 6))
sketch7.addConstraint(Sketcher.Constraint("Equal", 7, 8))
sketch7.addConstraint(Sketcher.Constraint("Equal", 8, 9))
sketch7.addConstraint(Sketcher.Constraint("Parallel", 2, 4))
sketch7.addConstraint(Sketcher.Constraint("Parallel", 0, 5))
sketch7.addConstraint(Sketcher.Constraint("Equal", 0, 2))
sketch7.addConstraint(Sketcher.Constraint("Diameter", 7, Q("0.201 in")))
sketch7.addConstraint(Sketcher.Constraint("Angle", 2, Q("110 deg")))
sketch7.addConstraint(Sketcher.Constraint("Radius", 1, Q("0.1875 in")))
sketch7.addConstraint(Sketcher.Constraint("Distance", 0, Q("1.2 in")))
sketch7.addConstraint(Sketcher.Constraint("DistanceX", -1, 1, 1, 3, Q("1.75 in")))
sketch7.addConstraint(Sketcher.Constraint("DistanceY", -1, 1, 1, 3, Q("1.765 in")))
sketch7.addConstraint(Sketcher.Constraint("DistanceY", -1, 1, 6, 2, Q("14.463501 mm")))
pad6 = body4.newObject("PartDesign::Pad", "Pad005")
pad6.Profile = sketch7
pad6.Length = Q("0.125 in")
body5 = doc.addObject("PartDesign::Body", "Body004")

# Sketch on XY plane
sketch8 = body5.newObject("Sketcher::SketchObject", "Sketch007")
sketch8.AttachmentSupport = (doc.getObject("XY_Plane004"), [""])
sketch8.MapMode = "FlatFace"
sketch8.addGeometry(Part.Circle(App.Vector(64.791448, 6.727928, 0), App.Vector(0, 0, 1), 4.445), False)
sketch8.addConstraint(Sketcher.Constraint("Diameter", 0, Q("0.35 in")))
sketch8.addConstraint(Sketcher.Constraint("DistanceX", -1, 1, 0, 3, Q("64.791448 mm")))
sketch8.addConstraint(Sketcher.Constraint("DistanceY", -1, 1, 0, 3, Q("6.727928 mm")))
pad7 = body5.newObject("PartDesign::Pad", "Pad006")
pad7.Profile = sketch8
pad7.Length = Q("0.125 in")

# Sketch on XY plane
sketch9 = body5.newObject("Sketcher::SketchObject", "Sketch008")
sketch9.AttachmentSupport = (doc.getObject("XY_Plane004"), [""])
sketch9.MapMode = "FlatFace"
sketch9.AttachmentOffset = App.Placement(App.Vector(0, 0, 0.125 * 25.4), App.Rotation())
sketch9.addGeometry(Part.Circle(App.Vector(64.791448, 6.727928, 0), App.Vector(0, 0, 1), 2.5527), False)
sketch9.addConstraint(Sketcher.Constraint("Diameter", 0, Q("0.201 in")))
sketch9.addConstraint(Sketcher.Constraint("DistanceX", -1, 1, 0, 3, Q("64.791448 mm")))
sketch9.addConstraint(Sketcher.Constraint("DistanceY", -1, 1, 0, 3, Q("6.727928 mm")))
pad8 = body5.newObject("PartDesign::Pad", "Pad007")
pad8.Profile = sketch9
pad8.Length = Q("0.25 in")
body6 = doc.addObject("PartDesign::Body", "Body005")

# Sketch on XY plane
sketch10 = body6.newObject("Sketcher::SketchObject", "Sketch009")
sketch10.AttachmentSupport = (doc.getObject("XY_Plane005"), [""])
sketch10.MapMode = "FlatFace"
sketch10.addGeometry(Part.ArcOfCircle(Part.Circle(App.Vector(19.05, 50.8, 0), App.Vector(0, 0, 1), 4.7625), math.radians(180), math.radians(256.775449)), False)
sketch10.addGeometry(Part.LineSegment(App.Vector(17.960492, 46.163797, 0), App.Vector(43.360492, 40.194797, 0)), False)
sketch10.addGeometry(Part.ArcOfCircle(Part.Circle(App.Vector(44.45, 44.831, 0), App.Vector(0, 0, 1), 4.7625), math.radians(-103.224551), math.radians(0)), False)
sketch10.addGeometry(Part.ArcOfCircle(Part.Circle(App.Vector(44.45, 44.831, 0), App.Vector(0, 0, 1), 4.7625), math.radians(0), math.radians(76.775449)), False)
sketch10.addGeometry(Part.LineSegment(App.Vector(45.539508, 49.467203, 0), App.Vector(23.8125, 54.57305, 0)), False)
sketch10.addGeometry(Part.LineSegment(App.Vector(23.8125, 54.57305, 0), App.Vector(23.8125, 107.95, 0)), False)
sketch10.addGeometry(Part.ArcOfCircle(Part.Circle(App.Vector(19.05, 107.95, 0), App.Vector(0, 0, 1), 4.7625), math.radians(0), math.radians(180)), False)
sketch10.addGeometry(Part.LineSegment(App.Vector(14.2875, 107.95, 0), App.Vector(14.2875, 50.8, 0)), False)
sketch10.addGeometry(Part.Circle(App.Vector(44.45, 44.831, 0), App.Vector(0, 0, 1), 2.5527), False)
sketch10.addGeometry(Part.Circle(App.Vector(19.05, 50.8, 0), App.Vector(0, 0, 1), 2.5527), False)
sketch10.addConstraint(Sketcher.Constraint("Tangent", 0, 2, 1, 1))
sketch10.addConstraint(Sketcher.Constraint("Tangent", 1, 2, 2, 1))
sketch10.addConstraint(Sketcher.Constraint("Tangent", 2, 2, 3, 1))
sketch10.addConstraint(Sketcher.Constraint("Tangent", 3, 2, 4, 1))
sketch10.addConstraint(Sketcher.Constraint("Coincident", 4, 2, 5, 1))
sketch10.addConstraint(Sketcher.Constraint("Tangent", 5, 2, 6, 1))
sketch10.addConstraint(Sketcher.Constraint("Tangent", 6, 2, 7, 1))
sketch10.addConstraint(Sketcher.Constraint("Tangent", 7, 2, 0, 1))
sketch10.addConstraint(Sketcher.Constraint("Vertical", 5))
sketch10.addConstraint(Sketcher.Constraint("Vertical", 7))
sketch10.addConstraint(Sketcher.Constraint("Coincident", 8, 3, 2, 3))
sketch10.addConstraint(Sketcher.Constraint("Coincident", 9, 3, 0, 3))
sketch10.addConstraint(Sketcher.Constraint("Equal", 0, 2))
sketch10.addConstraint(Sketcher.Constraint("Equal", 2, 3))
sketch10.addConstraint(Sketcher.Constraint("Equal", 3, 6))
sketch10.addConstraint(Sketcher.Constraint("Equal", 8, 9))
sketch10.addConstraint(Sketcher.Constraint("Parallel", 1, 4))
sketch10.addConstraint(Sketcher.Constraint("Horizontal", 8, 3, 2, 2))
sketch10.addConstraint(Sketcher.Constraint("Diameter", 8, Q("0.201 in")))
sketch10.addConstraint(Sketcher.Constraint("DistanceY", -1, 1, 0, 3, Q("2 in")))
sketch10.addConstraint(Sketcher.Constraint("Radius", 0, Q("0.1875 in")))
sketch10.addConstraint(Sketcher.Constraint("DistanceX", 0, 3, 2, 3, Q("1 in")))
sketch10.addConstraint(Sketcher.Constraint("DistanceY", 7, 2, 7, 1, Q("2.25 in")))
sketch10.addConstraint(Sketcher.Constraint("DistanceX", -1, 1, 0, 3, Q("0.75 in")))
sketch10.addConstraint(Sketcher.Constraint("DistanceY", -1, 1, 2, 3, Q("1.765 in")))
pad9 = body6.newObject("PartDesign::Pad", "Pad008")
pad9.Profile = sketch10
pad9.Length = Q("0.125 in")
body7 = doc.addObject("PartDesign::Body", "Body006")

# Sketch on XY plane
sketch11 = body7.newObject("Sketcher::SketchObject", "Sketch010")
sketch11.AttachmentSupport = (doc.getObject("XY_Plane006"), [""])
sketch11.MapMode = "FlatFace"
sketch11.addGeometry(Part.Circle(App.Vector(76.124065, 6.63764, 0), App.Vector(0, 0, 1), 2.5527), False)
sketch11.addConstraint(Sketcher.Constraint("Diameter", 0, Q("0.201 in")))
sketch11.addConstraint(Sketcher.Constraint("DistanceY", -1, 1, 0, 3, Q("6.63764 mm")))
sketch11.addConstraint(Sketcher.Constraint("DistanceX", -1, 1, 0, 3, Q("76.124065 mm")))
pad10 = body7.newObject("PartDesign::Pad", "Pad009")
pad10.Profile = sketch11
pad10.Length = Q("0.5 in")
body8 = doc.addObject("PartDesign::Body", "Body007")

# Sketch on XZ plane
sketch12 = body8.newObject("Sketcher::SketchObject", "Sketch011")
sketch12.AttachmentSupport = (doc.getObject("XZ_Plane007"), [""])
sketch12.MapMode = "FlatFace"
sketch12.AttachmentOffset = App.Placement(App.Vector(0, 0, 0.25 * 25.4), App.Rotation())
sketch12.addGeometry(Part.Circle(App.Vector(0, 12.7, 0), App.Vector(0, 0, 1), 2.5527), False)
sketch12.addConstraint(Sketcher.Constraint("PointOnObject", 0, 3, -2))
sketch12.addConstraint(Sketcher.Constraint("Diameter", 0, Q("0.201 in")))
sketch12.addConstraint(Sketcher.Constraint("DistanceY", -1, 1, 0, 3, Q("0.5 in")))
pad11 = body8.newObject("PartDesign::Pad", "Pad010")
pad11.Profile = sketch12
pad11.Length = Q("2.5 in")
pad11.Reversed = True

# Sketch on XZ plane
sketch13 = body8.newObject("Sketcher::SketchObject", "Sketch012")
sketch13.AttachmentSupport = (doc.getObject("XZ_Plane007"), [""])
sketch13.MapMode = "FlatFace"
sketch13.AttachmentOffset = App.Placement(App.Vector(0, 0, 0.25 * 25.4), App.Rotation())
sketch13.addGeometry(Part.Circle(App.Vector(0, 12.7, 0), App.Vector(0, 0, 1), 9.525), False)
sketch13.addConstraint(Sketcher.Constraint("PointOnObject", 0, 3, -2))
sketch13.addConstraint(Sketcher.Constraint("Diameter", 0, Q("0.75 in")))
sketch13.addConstraint(Sketcher.Constraint("DistanceY", -1, 1, 0, 3, Q("0.5 in")))
pad12 = body8.newObject("PartDesign::Pad", "Pad011")
pad12.Profile = sketch13
pad12.Length = Q("0.25 in")

doc.recompute()
